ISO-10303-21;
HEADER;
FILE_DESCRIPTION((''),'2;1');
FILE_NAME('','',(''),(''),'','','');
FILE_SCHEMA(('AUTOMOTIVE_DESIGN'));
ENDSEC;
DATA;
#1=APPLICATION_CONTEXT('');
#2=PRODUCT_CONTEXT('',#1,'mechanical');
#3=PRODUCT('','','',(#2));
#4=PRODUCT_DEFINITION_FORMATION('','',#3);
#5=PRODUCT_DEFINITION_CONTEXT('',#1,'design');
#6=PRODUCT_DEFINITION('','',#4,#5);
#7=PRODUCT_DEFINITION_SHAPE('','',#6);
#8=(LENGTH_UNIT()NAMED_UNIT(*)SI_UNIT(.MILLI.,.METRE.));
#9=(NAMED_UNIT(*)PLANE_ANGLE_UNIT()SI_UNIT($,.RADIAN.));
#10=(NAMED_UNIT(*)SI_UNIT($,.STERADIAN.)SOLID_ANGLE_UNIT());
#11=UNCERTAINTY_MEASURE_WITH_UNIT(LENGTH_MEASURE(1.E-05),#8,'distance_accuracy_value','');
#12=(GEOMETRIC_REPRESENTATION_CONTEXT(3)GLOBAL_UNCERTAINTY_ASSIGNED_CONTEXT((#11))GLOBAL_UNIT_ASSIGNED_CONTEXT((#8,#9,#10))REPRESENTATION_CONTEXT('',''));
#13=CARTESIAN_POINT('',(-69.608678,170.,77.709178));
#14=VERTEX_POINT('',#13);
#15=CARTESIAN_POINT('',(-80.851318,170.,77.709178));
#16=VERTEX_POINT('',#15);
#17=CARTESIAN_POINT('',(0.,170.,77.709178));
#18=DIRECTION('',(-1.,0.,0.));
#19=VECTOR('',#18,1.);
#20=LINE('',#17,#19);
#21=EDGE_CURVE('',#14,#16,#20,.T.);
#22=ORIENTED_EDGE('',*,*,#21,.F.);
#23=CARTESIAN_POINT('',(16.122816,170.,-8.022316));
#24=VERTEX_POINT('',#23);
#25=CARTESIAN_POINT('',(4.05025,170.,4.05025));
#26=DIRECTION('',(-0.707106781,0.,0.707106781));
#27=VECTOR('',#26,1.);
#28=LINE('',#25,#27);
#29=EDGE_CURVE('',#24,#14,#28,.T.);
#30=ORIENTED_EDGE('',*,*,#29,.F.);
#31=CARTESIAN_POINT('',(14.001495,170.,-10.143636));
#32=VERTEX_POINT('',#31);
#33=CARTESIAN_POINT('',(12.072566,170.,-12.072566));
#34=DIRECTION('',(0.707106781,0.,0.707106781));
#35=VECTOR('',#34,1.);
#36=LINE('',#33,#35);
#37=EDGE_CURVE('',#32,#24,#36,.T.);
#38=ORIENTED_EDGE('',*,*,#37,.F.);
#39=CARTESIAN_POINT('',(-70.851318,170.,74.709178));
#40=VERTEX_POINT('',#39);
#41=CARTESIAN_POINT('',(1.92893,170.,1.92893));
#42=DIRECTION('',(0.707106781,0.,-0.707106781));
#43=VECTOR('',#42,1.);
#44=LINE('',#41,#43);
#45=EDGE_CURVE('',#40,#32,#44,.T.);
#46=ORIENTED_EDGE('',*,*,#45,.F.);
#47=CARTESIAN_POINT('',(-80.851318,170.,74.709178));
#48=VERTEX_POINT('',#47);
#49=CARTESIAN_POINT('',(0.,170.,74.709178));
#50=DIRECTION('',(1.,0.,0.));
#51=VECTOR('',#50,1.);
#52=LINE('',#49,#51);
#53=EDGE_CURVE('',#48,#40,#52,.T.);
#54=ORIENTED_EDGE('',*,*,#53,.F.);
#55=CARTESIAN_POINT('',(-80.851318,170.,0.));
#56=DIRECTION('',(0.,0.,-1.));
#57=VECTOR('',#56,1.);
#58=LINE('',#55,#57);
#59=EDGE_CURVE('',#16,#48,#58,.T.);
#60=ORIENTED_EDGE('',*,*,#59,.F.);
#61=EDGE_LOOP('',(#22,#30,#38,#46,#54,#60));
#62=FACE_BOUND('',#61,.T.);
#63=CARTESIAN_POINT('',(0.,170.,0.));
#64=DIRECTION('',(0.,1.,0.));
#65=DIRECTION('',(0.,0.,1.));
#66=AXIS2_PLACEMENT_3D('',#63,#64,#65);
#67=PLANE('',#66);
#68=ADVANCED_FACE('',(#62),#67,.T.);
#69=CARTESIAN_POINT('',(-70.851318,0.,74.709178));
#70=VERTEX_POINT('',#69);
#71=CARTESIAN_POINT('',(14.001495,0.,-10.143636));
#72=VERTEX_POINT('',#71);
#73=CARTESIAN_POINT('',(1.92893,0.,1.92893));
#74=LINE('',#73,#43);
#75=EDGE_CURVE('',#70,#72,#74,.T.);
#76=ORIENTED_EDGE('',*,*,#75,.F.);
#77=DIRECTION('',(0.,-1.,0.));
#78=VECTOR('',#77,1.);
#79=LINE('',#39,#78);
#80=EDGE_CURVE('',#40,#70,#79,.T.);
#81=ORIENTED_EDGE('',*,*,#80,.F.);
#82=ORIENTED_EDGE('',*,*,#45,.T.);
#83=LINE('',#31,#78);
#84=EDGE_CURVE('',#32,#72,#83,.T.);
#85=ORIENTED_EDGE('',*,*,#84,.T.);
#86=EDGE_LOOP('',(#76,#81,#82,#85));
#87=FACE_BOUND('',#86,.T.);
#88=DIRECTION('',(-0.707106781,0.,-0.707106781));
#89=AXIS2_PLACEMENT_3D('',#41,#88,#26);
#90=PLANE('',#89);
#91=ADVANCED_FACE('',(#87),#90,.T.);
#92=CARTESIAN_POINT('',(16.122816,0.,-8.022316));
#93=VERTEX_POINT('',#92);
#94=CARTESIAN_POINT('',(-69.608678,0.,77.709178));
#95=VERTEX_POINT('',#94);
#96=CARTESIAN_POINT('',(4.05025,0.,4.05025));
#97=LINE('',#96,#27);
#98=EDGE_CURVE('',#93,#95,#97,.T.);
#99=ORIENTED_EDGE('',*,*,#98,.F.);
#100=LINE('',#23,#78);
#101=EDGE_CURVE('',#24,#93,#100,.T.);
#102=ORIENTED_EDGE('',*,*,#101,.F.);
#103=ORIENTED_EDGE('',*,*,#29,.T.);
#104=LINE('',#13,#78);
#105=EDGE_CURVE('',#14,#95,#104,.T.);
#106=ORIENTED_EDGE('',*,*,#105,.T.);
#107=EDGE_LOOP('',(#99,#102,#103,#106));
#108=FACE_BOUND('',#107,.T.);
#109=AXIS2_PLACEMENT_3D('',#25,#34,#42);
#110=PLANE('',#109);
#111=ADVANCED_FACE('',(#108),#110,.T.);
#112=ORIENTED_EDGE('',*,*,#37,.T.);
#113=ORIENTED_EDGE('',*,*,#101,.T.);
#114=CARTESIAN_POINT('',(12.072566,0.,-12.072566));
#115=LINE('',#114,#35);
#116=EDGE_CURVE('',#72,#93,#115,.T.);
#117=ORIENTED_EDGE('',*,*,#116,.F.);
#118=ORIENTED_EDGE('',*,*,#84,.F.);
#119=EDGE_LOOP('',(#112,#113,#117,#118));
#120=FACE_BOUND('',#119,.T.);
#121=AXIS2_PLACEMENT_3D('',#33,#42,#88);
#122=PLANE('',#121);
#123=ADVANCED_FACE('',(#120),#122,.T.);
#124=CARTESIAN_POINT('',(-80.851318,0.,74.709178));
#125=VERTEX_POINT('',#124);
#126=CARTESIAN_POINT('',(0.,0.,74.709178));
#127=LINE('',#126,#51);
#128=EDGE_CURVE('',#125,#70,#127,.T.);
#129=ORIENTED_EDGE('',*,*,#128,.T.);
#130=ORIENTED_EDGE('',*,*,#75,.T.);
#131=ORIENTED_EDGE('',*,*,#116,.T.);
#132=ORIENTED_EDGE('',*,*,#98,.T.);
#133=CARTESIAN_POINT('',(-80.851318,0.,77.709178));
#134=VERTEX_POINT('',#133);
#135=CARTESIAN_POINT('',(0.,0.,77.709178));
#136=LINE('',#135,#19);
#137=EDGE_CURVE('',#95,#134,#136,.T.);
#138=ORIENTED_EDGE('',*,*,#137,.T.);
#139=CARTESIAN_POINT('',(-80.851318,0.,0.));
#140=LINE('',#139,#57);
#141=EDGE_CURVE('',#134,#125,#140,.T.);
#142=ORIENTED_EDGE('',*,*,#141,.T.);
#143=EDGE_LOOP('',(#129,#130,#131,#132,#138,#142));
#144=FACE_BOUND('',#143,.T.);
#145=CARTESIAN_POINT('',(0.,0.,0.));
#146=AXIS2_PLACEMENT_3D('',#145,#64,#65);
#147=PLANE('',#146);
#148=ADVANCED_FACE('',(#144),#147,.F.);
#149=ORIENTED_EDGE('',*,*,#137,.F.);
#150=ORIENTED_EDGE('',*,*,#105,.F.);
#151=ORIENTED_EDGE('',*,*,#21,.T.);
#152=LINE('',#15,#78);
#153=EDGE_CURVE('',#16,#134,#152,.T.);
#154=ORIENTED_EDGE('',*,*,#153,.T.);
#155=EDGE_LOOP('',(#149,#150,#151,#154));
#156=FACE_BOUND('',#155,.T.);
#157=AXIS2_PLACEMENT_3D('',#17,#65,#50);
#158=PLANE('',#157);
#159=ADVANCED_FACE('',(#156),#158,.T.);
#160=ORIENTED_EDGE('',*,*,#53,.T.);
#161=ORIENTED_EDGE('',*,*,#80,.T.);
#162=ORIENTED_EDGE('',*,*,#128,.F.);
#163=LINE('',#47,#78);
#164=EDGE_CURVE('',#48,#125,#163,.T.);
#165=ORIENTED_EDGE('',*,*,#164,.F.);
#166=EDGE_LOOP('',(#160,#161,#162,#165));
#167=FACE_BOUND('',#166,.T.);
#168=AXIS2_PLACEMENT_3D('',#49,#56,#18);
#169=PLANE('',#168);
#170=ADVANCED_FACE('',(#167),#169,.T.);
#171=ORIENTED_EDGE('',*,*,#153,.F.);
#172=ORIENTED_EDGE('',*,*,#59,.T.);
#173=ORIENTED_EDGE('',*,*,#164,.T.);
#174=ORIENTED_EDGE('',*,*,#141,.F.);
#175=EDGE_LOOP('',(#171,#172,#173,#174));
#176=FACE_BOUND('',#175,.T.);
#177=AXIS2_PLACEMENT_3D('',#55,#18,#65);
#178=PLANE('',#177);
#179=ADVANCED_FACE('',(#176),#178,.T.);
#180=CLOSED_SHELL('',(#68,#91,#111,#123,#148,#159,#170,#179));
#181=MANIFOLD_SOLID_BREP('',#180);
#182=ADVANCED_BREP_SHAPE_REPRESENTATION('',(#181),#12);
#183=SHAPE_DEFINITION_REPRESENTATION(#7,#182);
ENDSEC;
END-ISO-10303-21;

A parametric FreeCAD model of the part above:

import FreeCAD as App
import Part
import Sketcher

V = App.Vector
Q = App.Units.Quantity

doc = App.newDocument("Part")
body = doc.addObject("PartDesign::Body", "Body")

# Sketch on XZ plane
sketch1 = body.newObject("Sketcher::SketchObject", "Sketch")
sketch1.AttachmentSupport = (doc.getObject("XZ_Plane"), [""])
sketch1.MapMode = "FlatFace"
sketch1.addGeometry([
    Part.LineSegment(V(-80.9, 77.7, 0), V(-69.6, 77.7, 0)),  # 0
    Part.LineSegment(V(-69.6, 77.7, 0), V(16.1, -8, 0)),  # 1
    Part.LineSegment(V(16.1, -8, 0), V(14, -10.1, 0)),  # 2
    Part.LineSegment(V(14, -10.1, 0), V(-70.9, 74.7, 0)),  # 3
    Part.LineSegment(V(-70.9, 74.7, 0), V(-80.9, 74.7, 0)),  # 4
    Part.LineSegment(V(-80.9, 74.7, 0), V(-80.9, 77.7, 0)),  # 5
], False)
sketch1.addConstraint([
    Sketcher.Constraint("Coincident", 0, 2, 1, 1),
    Sketcher.Constraint("Coincident", 1, 2, 2, 1),
    Sketcher.Constraint("Coincident", 2, 2, 3, 1),
    Sketcher.Constraint("Coincident", 3, 2, 4, 1),
    Sketcher.Constraint("Coincident", 4, 2, 5, 1),
    Sketcher.Constraint("Coincident", 5, 2, 0, 1),
    Sketcher.Constraint("Horizontal", 0),
    Sketcher.Constraint("Horizontal", 4),
    Sketcher.Constraint("Vertical", 5),
    Sketcher.Constraint("Perpendicular", 1, 2),
    Sketcher.Constraint("Perpendicular", 2, 3),
    Sketcher.Constraint("DistanceX", 4, 2, 4, 1, Q("10 mm")),
    Sketcher.Constraint("DistanceY", 5, 1, 5, 2, Q("3 mm")),
    Sketcher.Constraint("Angle", 1, Q("-45 deg")),
    Sketcher.Constraint("Distance", 2, Q("3 mm")),
    Sketcher.Constraint("Distance", 3, Q("120 mm")),
    Sketcher.Constraint("DistanceX", 3, 2, -1, 1, Q("70.851318 mm")),
    Sketcher.Constraint("DistanceY", -1, 1, 0, 2, Q("77.709178 mm")),
])
pad1 = body.newObject("PartDesign::Pad", "Pad")
pad1.Profile = sketch1
pad1.Length = 170
pad1.Reversed = True

doc.recompute()
